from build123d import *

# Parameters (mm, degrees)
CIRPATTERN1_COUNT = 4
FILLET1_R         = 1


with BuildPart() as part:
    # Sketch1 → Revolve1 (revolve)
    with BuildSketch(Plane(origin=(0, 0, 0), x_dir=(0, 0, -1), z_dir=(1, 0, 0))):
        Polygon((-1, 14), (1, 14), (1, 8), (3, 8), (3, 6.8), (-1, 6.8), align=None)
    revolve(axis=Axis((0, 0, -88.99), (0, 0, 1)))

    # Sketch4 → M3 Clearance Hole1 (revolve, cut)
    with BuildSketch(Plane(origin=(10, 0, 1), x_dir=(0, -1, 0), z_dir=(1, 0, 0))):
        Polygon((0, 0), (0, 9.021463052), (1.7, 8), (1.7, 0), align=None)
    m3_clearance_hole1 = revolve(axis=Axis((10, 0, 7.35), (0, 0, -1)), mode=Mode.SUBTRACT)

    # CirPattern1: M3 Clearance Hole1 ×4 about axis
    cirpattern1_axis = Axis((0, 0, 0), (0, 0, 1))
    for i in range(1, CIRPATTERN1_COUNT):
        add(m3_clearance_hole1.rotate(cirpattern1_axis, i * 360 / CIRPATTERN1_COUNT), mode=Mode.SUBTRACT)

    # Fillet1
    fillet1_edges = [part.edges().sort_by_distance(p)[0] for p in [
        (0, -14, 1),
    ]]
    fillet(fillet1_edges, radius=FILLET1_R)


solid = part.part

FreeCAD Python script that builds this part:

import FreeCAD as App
import Part
import Sketcher
from FreeCAD import Vector
Q = App.Units.Quantity


def edges_at(feature, points):
    """Names of the edges that pass closest to the given points."""
    edges = feature.Shape.Edges
    near = lambda p: min(range(len(edges)), key=lambda i: edges[i].distToShape(Part.Vertex(*p))[0])
    return sorted({f"Edge{near(p) + 1}" for p in points})


def add_polygon(sketch, points):
    """Adds a closed chain of lines whose ends are joined by coincident constraints."""
    first, n = sketch.GeometryCount, len(points)
    for a, b in zip(points, points[1:] + points[:1]):
        sketch.addGeometry(Part.LineSegment(App.Vector(*a, 0), App.Vector(*b, 0)), False)
    for i in range(n):
        sketch.addConstraint(Sketcher.Constraint("Coincident", first + i, 2, first + (i + 1) % n, 1))

doc = App.newDocument("Part")
params = doc.addObject("Spreadsheet::Sheet", "Params")
for row, (alias, value) in enumerate([
    ("sketch1_width", "6 mm"),
    ("sketch1_height", "2 mm"),
    ("sketch1_width2", "7.2 mm"),
    ("revolution_angle", "360 deg"),
    ("sketch2_height", "8 mm"),
    ("sketch2_width", "1.7 mm"),
    ("groove_angle", "360 deg"),
    ("fillet_radius", "1 mm"),
], start=1):
    params.set(f"A{row}", alias)
    params.set(f"B{row}", "=" + value)
    params.setAlias(f"B{row}", alias)

body = doc.addObject("PartDesign::Body", "Body")

sketch1 = doc.addObject("Sketcher::SketchObject", "Sketch")
body.addObject(sketch1)
sketch1.AttachmentSupport = (doc.YZ_Plane, [""])
sketch1.MapMode = "FlatFace"
add_polygon(sketch1, [(14, -1), (14, 1), (6.8, 1), (6.8, -3), (8, -3), (8, -1)])
sketch1.addConstraint(Sketcher.Constraint("Vertical", 0))
sketch1.addConstraint(Sketcher.Constraint("Horizontal", 1))
sketch1.addConstraint(Sketcher.Constraint("Vertical", 2))
sketch1.addConstraint(Sketcher.Constraint("Horizontal", 3))
sketch1.addConstraint(Sketcher.Constraint("Vertical", 4))
sketch1.addConstraint(Sketcher.Constraint("Horizontal", 5))
sketch1.addConstraint(Sketcher.Constraint("Equal", 0, 4))
sketch1.addConstraint(Sketcher.Constraint("DistanceX", 5, 1, 5, 2, 6.0))
sketch1.addConstraint(Sketcher.Constraint("DistanceY", 0, 1, 0, 2, 2.0))
sketch1.addConstraint(Sketcher.Constraint("DistanceX", 1, 2, 1, 1, 7.2))
sketch1.addConstraint(Sketcher.Constraint("DistanceX", -1, 1, 0, 2, 14.0))
sketch1.addConstraint(Sketcher.Constraint("DistanceY", -1, 1, 0, 2, 1.0))
sketch1.setExpression("Constraints[13]", "Params.sketch1_width")
sketch1.setExpression("Constraints[14]", "Params.sketch1_height")
sketch1.setExpression("Constraints[15]", "Params.sketch1_width2")
revolution = doc.addObject("PartDesign::Revolution", "Revolution")
body.addObject(revolution)
revolution.Profile = sketch1
revolution.ReferenceAxis = (sketch1, ["V_Axis"])
revolution.setExpression("Angle", "Params.revolution_angle")

sketch2 = doc.addObject("Sketcher::SketchObject", "Sketch001")
body.addObject(sketch2)
sketch2.AttachmentSupport = (doc.YZ_Plane, [""])
sketch2.MapMode = "FlatFace"
sketch2.AttachmentOffset = App.Placement(Vector(0, 0, 10), App.Rotation())
add_polygon(sketch2, [(0, -8.021463), (0, 1), (-1.7, 1), (-1.7, -7)])
sketch2.addConstraint(Sketcher.Constraint("Vertical", 0))
sketch2.addConstraint(Sketcher.Constraint("Horizontal", 1))
sketch2.addConstraint(Sketcher.Constraint("Vertical", 2))
sketch2.addConstraint(Sketcher.Constraint("PointOnObject", 0, 2, -2))
sketch2.addConstraint(Sketcher.Constraint("DistanceY", 2, 2, 2, 1, 8.0))
sketch2.addConstraint(Sketcher.Constraint("Angle", 3, Q("-31 deg")))
sketch2.addConstraint(Sketcher.Constraint("DistanceX", 1, 2, 1, 1, 1.7))
sketch2.addConstraint(Sketcher.Constraint("DistanceY", -1, 1, 0, 2, 1.0))
sketch2.setExpression("Constraints[8]", "Params.sketch2_height")
sketch2.setExpression("Constraints[10]", "Params.sketch2_width")
groove = doc.addObject("PartDesign::Groove", "Groove")
body.addObject(groove)
groove.Profile = sketch2
groove.ReferenceAxis = (sketch2, ["V_Axis"])
groove.setExpression("Angle", "Params.groove_angle")
doc.recompute()

polarpattern = doc.addObject("PartDesign::PolarPattern", "PolarPattern")
body.addObject(polarpattern)
polarpattern.Originals = [groove]
polarpattern.Axis = (doc.Z_Axis, [""])
polarpattern.Angle = 360
polarpattern.Occurrences = 4
body.Tip = polarpattern
doc.recompute()

fillet = doc.addObject("PartDesign::Fillet", "Fillet")
body.addObject(fillet)
fillet.Base = (polarpattern, edges_at(polarpattern, [(0, -14, 1)]))
fillet.setExpression("Radius", "Params.fillet_radius")

doc.recompute()
